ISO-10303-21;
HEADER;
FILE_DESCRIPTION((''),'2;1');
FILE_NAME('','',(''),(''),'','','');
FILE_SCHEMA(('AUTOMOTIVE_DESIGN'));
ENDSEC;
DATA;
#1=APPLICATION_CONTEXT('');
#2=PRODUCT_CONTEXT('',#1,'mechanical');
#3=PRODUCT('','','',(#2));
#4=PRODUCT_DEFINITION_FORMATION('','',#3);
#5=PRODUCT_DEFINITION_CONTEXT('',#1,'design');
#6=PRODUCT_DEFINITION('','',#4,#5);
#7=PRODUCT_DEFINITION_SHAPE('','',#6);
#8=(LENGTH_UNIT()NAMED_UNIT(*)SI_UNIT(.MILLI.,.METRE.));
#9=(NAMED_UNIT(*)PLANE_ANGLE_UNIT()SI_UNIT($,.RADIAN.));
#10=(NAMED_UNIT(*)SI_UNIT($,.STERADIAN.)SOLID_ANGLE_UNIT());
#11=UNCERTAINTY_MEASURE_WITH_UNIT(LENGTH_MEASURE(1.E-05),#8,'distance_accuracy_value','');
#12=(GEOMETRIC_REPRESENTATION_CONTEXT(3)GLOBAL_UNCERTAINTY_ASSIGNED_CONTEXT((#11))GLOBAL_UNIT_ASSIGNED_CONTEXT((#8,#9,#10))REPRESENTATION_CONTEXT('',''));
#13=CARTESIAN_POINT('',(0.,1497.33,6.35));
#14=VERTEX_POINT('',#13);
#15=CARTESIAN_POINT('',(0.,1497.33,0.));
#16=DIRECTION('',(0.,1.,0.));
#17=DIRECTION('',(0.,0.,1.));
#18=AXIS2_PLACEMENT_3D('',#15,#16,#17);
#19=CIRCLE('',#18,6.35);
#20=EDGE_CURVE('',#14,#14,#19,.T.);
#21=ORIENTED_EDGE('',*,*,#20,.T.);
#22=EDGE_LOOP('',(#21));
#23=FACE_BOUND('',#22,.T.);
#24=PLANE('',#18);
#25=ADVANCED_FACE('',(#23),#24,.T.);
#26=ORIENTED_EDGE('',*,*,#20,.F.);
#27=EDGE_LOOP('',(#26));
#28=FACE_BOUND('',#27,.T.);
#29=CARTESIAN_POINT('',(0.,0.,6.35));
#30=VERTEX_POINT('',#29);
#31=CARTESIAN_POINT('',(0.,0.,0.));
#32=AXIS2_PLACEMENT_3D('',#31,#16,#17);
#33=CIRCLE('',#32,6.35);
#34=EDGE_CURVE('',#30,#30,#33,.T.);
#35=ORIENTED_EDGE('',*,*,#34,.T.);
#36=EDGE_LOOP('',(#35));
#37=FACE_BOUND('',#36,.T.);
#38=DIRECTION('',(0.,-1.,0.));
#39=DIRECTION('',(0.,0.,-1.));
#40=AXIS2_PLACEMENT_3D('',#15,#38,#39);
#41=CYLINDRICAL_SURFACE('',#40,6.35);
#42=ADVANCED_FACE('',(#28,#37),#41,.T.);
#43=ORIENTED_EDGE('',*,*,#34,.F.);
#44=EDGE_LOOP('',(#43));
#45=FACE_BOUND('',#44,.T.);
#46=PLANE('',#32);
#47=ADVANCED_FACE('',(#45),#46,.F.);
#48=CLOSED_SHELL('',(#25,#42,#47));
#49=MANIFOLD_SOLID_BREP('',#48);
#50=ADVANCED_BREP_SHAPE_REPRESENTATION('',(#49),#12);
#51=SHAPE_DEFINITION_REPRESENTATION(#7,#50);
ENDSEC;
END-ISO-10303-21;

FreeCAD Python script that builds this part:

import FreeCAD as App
import Part
import Sketcher
from FreeCAD import Vector
Q = App.Units.Quantity

doc = App.newDocument("Part")
params = doc.addObject("Spreadsheet::Sheet", "Params")
for row, (alias, value) in enumerate([
    ("sketch1_diameter", "0.5 in"),
    ("pad1_length", "58.95 in"),
], start=1):
    params.set(f"A{row}", alias)
    params.set(f"B{row}", "=" + value)
    params.setAlias(f"B{row}", alias)

body = doc.addObject("PartDesign::Body", "Body")

# Sketch on XZ plane
sketch1 = doc.addObject("Sketcher::SketchObject", "Sketch")
body.addObject(sketch1)
sketch1.AttachmentSupport = (doc.XZ_Plane, [""])
sketch1.MapMode = "FlatFace"
sketch1.addGeometry(Part.Circle(Vector(0, 0, 0), Vector(0, 0, 1), 6.35), False)
sketch1.addConstraint([
    Sketcher.Constraint("Coincident", 0, 3, -1, 1),
    Sketcher.Constraint("Diameter", 0, Q("0.5 in")),
])
sketch1.setExpression("Constraints[1]", "Params.sketch1_diameter")
pad1 = doc.addObject("PartDesign::Pad", "Pad")
body.addObject(pad1)
pad1.Profile = sketch1
pad1.setExpression("Length", "Params.pad1_length")
pad1.Reversed = True

doc.recompute()
